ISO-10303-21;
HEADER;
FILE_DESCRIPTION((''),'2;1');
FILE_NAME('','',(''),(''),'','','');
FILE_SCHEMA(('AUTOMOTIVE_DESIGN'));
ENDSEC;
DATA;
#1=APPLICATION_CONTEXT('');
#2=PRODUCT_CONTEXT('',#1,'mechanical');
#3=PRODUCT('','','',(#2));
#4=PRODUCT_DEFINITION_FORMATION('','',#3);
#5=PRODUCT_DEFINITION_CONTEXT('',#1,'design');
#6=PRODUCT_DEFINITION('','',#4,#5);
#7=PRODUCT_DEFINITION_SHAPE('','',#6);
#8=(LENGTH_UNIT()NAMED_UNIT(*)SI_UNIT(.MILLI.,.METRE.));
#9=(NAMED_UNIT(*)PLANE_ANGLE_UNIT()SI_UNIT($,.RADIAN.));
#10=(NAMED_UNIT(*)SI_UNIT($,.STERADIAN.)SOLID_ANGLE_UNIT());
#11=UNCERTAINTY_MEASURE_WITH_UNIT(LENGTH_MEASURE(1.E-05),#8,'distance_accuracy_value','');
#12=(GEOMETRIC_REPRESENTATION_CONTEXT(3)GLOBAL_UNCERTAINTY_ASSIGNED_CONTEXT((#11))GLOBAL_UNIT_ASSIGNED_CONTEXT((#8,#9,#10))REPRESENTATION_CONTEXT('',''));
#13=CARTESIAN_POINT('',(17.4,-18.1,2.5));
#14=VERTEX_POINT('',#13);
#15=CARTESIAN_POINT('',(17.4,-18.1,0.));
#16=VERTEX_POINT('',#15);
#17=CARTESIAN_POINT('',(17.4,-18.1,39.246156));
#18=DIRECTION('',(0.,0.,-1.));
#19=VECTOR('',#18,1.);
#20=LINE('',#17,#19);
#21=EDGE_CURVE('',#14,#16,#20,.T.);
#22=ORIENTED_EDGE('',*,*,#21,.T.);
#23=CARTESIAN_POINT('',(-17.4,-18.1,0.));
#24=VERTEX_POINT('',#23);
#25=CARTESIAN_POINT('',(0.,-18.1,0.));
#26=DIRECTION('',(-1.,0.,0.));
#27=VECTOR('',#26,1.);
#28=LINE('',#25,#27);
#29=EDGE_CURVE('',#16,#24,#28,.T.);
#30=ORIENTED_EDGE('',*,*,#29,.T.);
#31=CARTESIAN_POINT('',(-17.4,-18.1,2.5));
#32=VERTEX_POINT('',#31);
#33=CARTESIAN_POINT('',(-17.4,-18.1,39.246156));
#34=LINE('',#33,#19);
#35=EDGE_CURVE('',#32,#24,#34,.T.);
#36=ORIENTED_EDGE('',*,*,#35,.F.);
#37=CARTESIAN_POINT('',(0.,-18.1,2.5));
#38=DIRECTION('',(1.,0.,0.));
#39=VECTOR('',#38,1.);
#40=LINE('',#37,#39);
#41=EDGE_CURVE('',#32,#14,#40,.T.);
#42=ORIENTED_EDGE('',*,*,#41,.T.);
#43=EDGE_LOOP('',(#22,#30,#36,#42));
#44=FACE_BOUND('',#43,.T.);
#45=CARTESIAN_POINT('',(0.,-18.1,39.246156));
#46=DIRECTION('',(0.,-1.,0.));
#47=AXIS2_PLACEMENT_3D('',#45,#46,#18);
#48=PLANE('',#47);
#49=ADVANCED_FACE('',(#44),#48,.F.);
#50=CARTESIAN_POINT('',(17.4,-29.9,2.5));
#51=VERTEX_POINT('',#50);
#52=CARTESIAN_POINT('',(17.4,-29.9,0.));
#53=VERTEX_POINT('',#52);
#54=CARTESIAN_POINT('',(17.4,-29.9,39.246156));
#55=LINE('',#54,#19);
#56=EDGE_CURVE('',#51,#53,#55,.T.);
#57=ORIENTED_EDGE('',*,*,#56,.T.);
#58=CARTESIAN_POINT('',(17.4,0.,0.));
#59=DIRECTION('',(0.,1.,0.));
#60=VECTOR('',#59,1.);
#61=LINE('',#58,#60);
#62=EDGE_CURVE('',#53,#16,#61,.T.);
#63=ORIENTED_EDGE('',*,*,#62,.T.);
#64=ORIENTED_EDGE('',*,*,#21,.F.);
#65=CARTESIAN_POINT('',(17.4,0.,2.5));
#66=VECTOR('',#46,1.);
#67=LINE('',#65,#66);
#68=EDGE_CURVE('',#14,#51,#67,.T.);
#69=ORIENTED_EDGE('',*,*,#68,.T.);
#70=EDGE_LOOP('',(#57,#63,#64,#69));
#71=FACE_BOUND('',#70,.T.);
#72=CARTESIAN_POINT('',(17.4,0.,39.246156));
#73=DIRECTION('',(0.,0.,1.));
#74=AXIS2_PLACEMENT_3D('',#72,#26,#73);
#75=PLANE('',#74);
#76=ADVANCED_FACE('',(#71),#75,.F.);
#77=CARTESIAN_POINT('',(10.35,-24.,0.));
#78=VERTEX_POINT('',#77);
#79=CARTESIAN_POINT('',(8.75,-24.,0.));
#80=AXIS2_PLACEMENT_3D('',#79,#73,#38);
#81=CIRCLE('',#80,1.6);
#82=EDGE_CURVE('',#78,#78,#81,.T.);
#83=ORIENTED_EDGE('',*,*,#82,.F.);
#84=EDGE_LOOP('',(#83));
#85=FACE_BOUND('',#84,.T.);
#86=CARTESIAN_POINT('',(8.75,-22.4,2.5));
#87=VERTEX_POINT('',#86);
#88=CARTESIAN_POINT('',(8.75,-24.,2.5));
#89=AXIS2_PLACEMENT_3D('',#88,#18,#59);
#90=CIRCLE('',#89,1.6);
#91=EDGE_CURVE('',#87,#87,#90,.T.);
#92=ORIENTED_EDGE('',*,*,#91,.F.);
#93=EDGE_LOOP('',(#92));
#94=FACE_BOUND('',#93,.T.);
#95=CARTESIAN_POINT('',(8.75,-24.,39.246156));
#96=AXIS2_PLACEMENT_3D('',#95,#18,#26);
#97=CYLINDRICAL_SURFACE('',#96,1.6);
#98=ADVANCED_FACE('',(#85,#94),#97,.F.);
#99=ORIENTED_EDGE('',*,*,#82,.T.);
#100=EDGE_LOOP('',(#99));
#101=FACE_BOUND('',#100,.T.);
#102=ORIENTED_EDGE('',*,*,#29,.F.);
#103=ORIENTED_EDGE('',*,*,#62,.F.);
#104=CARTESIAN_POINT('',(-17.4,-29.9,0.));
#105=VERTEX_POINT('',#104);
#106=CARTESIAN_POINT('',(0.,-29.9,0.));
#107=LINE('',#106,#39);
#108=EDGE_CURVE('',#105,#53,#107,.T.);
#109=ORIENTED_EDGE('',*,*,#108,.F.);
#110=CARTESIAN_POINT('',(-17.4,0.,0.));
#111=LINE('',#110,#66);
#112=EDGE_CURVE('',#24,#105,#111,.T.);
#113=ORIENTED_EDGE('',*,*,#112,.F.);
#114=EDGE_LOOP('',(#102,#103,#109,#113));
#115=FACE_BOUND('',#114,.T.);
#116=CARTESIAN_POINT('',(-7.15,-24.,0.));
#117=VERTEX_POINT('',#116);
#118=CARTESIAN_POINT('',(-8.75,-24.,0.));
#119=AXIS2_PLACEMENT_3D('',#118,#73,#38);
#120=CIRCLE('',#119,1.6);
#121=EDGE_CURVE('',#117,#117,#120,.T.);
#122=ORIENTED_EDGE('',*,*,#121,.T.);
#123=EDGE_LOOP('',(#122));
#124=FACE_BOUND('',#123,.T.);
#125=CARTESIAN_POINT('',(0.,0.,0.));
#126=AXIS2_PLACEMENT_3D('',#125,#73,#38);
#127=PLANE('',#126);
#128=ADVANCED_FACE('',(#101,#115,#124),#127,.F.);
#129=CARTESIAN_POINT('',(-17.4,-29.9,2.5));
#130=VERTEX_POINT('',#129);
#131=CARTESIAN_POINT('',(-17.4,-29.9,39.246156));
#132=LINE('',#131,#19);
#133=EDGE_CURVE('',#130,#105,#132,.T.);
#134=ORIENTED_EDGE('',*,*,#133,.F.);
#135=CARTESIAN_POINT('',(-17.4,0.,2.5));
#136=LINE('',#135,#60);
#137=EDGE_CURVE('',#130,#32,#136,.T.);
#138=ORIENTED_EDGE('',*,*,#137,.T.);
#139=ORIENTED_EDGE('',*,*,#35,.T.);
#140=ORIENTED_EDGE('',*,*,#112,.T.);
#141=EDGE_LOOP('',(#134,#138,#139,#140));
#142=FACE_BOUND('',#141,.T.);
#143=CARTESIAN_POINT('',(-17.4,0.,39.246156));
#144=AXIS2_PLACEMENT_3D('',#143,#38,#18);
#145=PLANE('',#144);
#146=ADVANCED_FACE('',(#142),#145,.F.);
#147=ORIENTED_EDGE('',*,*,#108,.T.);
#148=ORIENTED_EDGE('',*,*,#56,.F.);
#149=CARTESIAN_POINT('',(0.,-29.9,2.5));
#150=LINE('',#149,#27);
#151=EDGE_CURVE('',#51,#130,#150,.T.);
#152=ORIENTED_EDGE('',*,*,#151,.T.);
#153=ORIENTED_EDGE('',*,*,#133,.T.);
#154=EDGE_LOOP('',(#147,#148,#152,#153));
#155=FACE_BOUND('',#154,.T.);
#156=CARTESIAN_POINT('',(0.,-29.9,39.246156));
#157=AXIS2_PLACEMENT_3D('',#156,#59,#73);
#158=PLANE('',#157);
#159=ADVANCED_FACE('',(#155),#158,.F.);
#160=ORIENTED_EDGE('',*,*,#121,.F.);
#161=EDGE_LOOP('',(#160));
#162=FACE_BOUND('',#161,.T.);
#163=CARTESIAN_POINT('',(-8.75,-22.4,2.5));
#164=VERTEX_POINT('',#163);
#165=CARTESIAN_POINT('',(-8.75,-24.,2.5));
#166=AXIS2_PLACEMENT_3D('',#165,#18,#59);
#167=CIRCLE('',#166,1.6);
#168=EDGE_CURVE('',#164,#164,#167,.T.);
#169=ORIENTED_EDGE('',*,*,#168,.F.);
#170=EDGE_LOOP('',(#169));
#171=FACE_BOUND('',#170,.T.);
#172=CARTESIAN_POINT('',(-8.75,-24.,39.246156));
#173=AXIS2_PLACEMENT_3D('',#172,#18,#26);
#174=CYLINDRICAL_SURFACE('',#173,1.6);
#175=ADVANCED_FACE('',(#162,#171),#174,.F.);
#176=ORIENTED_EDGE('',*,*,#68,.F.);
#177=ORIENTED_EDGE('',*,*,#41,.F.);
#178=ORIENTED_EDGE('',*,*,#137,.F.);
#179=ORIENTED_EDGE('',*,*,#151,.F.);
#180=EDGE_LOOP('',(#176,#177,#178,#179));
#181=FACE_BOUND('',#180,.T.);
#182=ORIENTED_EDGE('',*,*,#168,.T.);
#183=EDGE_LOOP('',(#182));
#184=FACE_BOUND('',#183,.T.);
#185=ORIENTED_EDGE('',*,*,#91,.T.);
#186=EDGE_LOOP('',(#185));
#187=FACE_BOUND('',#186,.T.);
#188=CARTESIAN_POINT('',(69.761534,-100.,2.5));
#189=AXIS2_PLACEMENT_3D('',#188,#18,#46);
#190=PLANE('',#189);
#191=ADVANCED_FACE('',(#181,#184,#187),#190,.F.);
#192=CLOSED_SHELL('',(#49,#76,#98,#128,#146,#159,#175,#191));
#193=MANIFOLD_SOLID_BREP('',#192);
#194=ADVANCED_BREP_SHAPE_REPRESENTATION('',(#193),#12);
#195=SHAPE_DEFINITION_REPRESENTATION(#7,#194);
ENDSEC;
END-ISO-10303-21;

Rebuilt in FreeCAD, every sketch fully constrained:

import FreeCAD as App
import Part
import Sketcher

doc = App.newDocument("Part")
body = doc.addObject("PartDesign::Body", "Body")

sketch1 = body.newObject("Sketcher::SketchObject", "Sketch")
sketch1.AttachmentSupport = (doc.getObject("XY_Plane"), [""])
sketch1.MapMode = "FlatFace"
sketch1.addGeometry([
    Part.LineSegment(App.Vector(-17.4, -18.1, 0), App.Vector(-17.4, -29.9, 0)),
    Part.LineSegment(App.Vector(-17.4, -29.9, 0), App.Vector(17.4, -29.9, 0)),
    Part.LineSegment(App.Vector(17.4, -29.9, 0), App.Vector(17.4, -18.1, 0)),
    Part.LineSegment(App.Vector(17.4, -18.1, 0), App.Vector(-17.4, -18.1, 0)),
    Part.Circle(App.Vector(-8.75, -24, 0), App.Vector(0, 0, 1), 1.6),
    Part.Circle(App.Vector(8.75, -24, 0), App.Vector(0, 0, 1), 1.6),
], False)
sketch1.addConstraint([
    Sketcher.Constraint("Coincident", 0, 2, 1, 1),
    Sketcher.Constraint("Coincident", 1, 2, 2, 1),
    Sketcher.Constraint("Coincident", 2, 2, 3, 1),
    Sketcher.Constraint("Coincident", 3, 2, 0, 1),
    Sketcher.Constraint("Vertical", 0),
    Sketcher.Constraint("Horizontal", 1),
    Sketcher.Constraint("Vertical", 2),
    Sketcher.Constraint("Horizontal", 3),
    Sketcher.Constraint("Equal", 4, 5),
    Sketcher.Constraint("Symmetric", 4, 3, 5, 3, -2),
    Sketcher.Constraint("Diameter", 4, 3.2),
    Sketcher.Constraint("DistanceX", 1, 1, 1, 2, 34.8),
    Sketcher.Constraint("DistanceY", 0, 2, 0, 1, 11.8),
    Sketcher.Constraint("DistanceY", 4, 3, -1, 1, 24.0),
    Sketcher.Constraint("DistanceX", 0, 2, -1, 1, 17.4),
    Sketcher.Constraint("DistanceY", 0, 2, -1, 1, 29.9),
    Sketcher.Constraint("DistanceX", 4, 3, 5, 3, 17.5),
])
pad1 = body.newObject("PartDesign::Pad", "Pad")
pad1.Profile = sketch1
pad1.Length = 2.5

doc.recompute()
